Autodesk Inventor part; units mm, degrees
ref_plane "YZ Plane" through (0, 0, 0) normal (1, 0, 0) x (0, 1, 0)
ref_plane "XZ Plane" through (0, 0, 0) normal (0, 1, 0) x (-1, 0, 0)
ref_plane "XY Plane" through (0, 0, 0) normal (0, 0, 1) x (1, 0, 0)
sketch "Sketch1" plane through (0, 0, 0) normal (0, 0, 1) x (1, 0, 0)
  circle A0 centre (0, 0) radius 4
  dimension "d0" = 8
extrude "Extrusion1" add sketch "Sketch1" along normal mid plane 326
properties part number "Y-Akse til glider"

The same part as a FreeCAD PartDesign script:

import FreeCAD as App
import Part
import Sketcher

V = App.Vector
Q = App.Units.Quantity

doc = App.newDocument("Part")
body = doc.addObject("PartDesign::Body", "Body")

# Sketch on XY plane
sketch1 = body.newObject("Sketcher::SketchObject", "Sketch")
sketch1.AttachmentSupport = (doc.getObject("XY_Plane"), [""])
sketch1.MapMode = "FlatFace"
sketch1.addGeometry(Part.Circle(V(0, 0, 0), V(0, 0, 1), 4), False)
sketch1.addConstraint([
    Sketcher.Constraint("Coincident", 0, 3, -1, 1),
    Sketcher.Constraint("Diameter", 0, Q("8 mm")),
])
pad1 = body.newObject("PartDesign::Pad", "Pad")
pad1.Profile = sketch1
pad1.Length = 326
pad1.Midplane = True

doc.recompute()
